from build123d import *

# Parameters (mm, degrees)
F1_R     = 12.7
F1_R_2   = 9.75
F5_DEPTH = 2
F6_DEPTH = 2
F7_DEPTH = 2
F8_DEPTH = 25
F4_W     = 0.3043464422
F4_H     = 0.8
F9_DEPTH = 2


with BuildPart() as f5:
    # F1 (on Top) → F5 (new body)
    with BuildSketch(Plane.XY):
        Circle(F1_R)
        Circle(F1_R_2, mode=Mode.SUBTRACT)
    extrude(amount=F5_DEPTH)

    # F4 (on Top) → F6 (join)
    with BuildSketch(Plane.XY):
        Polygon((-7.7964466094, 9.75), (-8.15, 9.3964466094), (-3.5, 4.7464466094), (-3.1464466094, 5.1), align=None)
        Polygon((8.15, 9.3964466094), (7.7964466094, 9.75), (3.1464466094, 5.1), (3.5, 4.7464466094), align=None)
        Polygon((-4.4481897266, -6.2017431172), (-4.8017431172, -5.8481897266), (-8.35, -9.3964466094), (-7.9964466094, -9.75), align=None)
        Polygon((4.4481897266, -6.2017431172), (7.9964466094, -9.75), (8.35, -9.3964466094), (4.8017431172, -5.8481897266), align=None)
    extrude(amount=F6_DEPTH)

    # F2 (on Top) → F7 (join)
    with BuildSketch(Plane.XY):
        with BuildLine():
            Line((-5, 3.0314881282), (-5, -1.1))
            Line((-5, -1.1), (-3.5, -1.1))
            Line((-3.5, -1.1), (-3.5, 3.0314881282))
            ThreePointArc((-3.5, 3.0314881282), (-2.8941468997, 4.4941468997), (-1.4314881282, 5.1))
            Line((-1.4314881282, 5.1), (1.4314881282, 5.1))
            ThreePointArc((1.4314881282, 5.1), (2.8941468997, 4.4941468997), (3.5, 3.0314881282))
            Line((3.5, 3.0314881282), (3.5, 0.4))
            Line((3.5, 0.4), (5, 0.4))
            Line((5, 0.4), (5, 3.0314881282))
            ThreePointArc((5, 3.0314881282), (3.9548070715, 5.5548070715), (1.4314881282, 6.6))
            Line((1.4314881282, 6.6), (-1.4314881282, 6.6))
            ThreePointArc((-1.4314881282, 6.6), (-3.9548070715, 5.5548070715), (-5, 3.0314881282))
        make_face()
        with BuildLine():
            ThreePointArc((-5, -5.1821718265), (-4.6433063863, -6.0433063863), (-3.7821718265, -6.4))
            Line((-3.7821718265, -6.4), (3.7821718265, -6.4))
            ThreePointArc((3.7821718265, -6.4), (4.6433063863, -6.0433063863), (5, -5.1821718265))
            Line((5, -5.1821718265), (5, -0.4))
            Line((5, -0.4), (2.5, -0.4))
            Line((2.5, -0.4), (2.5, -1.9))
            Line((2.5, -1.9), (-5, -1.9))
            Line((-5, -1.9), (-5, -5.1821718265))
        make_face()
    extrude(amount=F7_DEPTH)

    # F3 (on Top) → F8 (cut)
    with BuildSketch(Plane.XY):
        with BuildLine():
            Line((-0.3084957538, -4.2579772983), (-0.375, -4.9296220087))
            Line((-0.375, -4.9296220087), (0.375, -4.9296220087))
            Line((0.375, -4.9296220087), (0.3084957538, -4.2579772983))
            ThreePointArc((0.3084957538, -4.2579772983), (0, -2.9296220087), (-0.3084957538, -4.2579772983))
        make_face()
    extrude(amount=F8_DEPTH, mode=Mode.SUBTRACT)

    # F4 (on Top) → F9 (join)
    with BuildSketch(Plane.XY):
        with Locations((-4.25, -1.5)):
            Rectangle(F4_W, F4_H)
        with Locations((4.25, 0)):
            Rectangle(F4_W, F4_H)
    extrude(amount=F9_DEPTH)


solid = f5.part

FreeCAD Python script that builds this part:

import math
import FreeCAD as App
import Part
import Sketcher
from FreeCAD import Vector
Q = App.Units.Quantity


def add_polygon(sketch, points):
    """Adds a closed chain of lines whose ends are joined by coincident constraints."""
    first, n = sketch.GeometryCount, len(points)
    for a, b in zip(points, points[1:] + points[:1]):
        sketch.addGeometry(Part.LineSegment(App.Vector(*a, 0), App.Vector(*b, 0)), False)
    for i in range(n):
        sketch.addConstraint(Sketcher.Constraint("Coincident", first + i, 2, first + (i + 1) % n, 1))

doc = App.newDocument("Part")
body = doc.addObject("PartDesign::Body", "Body")

sketch1 = doc.addObject("Sketcher::SketchObject", "Sketch")
body.addObject(sketch1)
sketch1.AttachmentSupport = (doc.XY_Plane, [""])
sketch1.MapMode = "FlatFace"
sketch1.addGeometry([
    Part.Circle(Vector(0, 0, 0), Vector(0, 0, 1), 13),
    Part.Circle(Vector(0, 0, 0), Vector(0, 0, 1), 10),
], False)
sketch1.addConstraint([
    Sketcher.Constraint("Coincident", 0, 3, -1, 1),
    Sketcher.Constraint("Coincident", 1, 3, -1, 1),
    Sketcher.Constraint("Diameter", 0, Q("25.4 mm")),
    Sketcher.Constraint("Diameter", 1, Q("19.5 mm")),
])
pad1 = doc.addObject("PartDesign::Pad", "Pad")
body.addObject(pad1)
pad1.Profile = sketch1
pad1.Length = 2

sketch2 = doc.addObject("Sketcher::SketchObject", "Sketch001")
body.addObject(sketch2)
sketch2.AttachmentSupport = (doc.XY_Plane, [""])
sketch2.MapMode = "FlatFace"
add_polygon(sketch2, [(-7.8, 9.75), (-8.15, 9.4), (-3.5, 4.75), (-3.15, 5.1)])
add_polygon(sketch2, [(8.15, 9.4), (7.8, 9.75), (3.15, 5.1), (3.5, 4.75)])
add_polygon(sketch2, [(-4.45, -6.2), (-4.8, -5.85), (-8.35, -9.4), (-8, -9.75)])
add_polygon(sketch2, [(4.45, -6.2), (8, -9.75), (8.35, -9.4), (4.8, -5.85)])
sketch2.addConstraint([
    Sketcher.Constraint("Symmetric", 3, 2, 4, 2, -2),
    Sketcher.Constraint("Symmetric", 2, 2, 5, 2, -2),
    Sketcher.Constraint("Symmetric", 1, 2, 6, 2, -2),
    Sketcher.Constraint("Symmetric", 0, 2, 7, 2, -2),
    Sketcher.Constraint("Symmetric", 10, 2, 12, 2, -2),
    Sketcher.Constraint("Symmetric", 9, 2, 13, 2, -2),
    Sketcher.Constraint("Symmetric", 8, 2, 14, 2, -2),
    Sketcher.Constraint("Symmetric", 11, 2, 15, 2, -2),
    Sketcher.Constraint("Perpendicular", 0, 1),
    Sketcher.Constraint("Perpendicular", 1, 2),
    Sketcher.Constraint("Perpendicular", 2, 3),
    Sketcher.Constraint("Parallel", 3, 4),
    Sketcher.Constraint("Perpendicular", 7, 8),
    Sketcher.Constraint("Perpendicular", 8, 9),
    Sketcher.Constraint("Perpendicular", 9, 10),
    Sketcher.Constraint("Perpendicular", 10, 11),
    Sketcher.Constraint("Equal", 6, 8),
    Sketcher.Constraint("DistanceX", 1, 2, 6, 2, Q("7 mm")),
    Sketcher.Constraint("Distance", 0, Q("0.5 mm")),
    Sketcher.Constraint("DistanceY", -1, 1, 2, 2, Q("5.1 mm")),
    Sketcher.Constraint("DistanceX", 0, 2, -1, 1, Q("8.15 mm")),
    Sketcher.Constraint("DistanceX", 9, 2, -1, 1, Q("8.35 mm")),
    Sketcher.Constraint("DistanceY", 10, 2, -1, 1, Q("9.75 mm")),
    Sketcher.Constraint("DistanceY", 8, 2, -1, 1, Q("5.84819 mm")),
])
pad2 = doc.addObject("PartDesign::Pad", "Pad001")
body.addObject(pad2)
pad2.Profile = sketch2
pad2.Length = 2

sketch3 = doc.addObject("Sketcher::SketchObject", "Sketch002")
body.addObject(sketch3)
sketch3.AttachmentSupport = (doc.XY_Plane, [""])
sketch3.MapMode = "FlatFace"
sketch3.addGeometry([
    Part.LineSegment(Vector(-5, 3, 0), Vector(-5, -1.1, 0)),
    Part.LineSegment(Vector(-5, -1.1, 0), Vector(-3.5, -1.1, 0)),
    Part.LineSegment(Vector(-3.5, -1.1, 0), Vector(-3.5, 3, 0)),
    Part.ArcOfCircle(Part.Circle(Vector(-1.4, 3, 0), Vector(0, 0, 1), 2.1), math.radians(90), math.radians(180)),
    Part.LineSegment(Vector(-1.4, 5.1, 0), Vector(1.4, 5.1, 0)),
    Part.ArcOfCircle(Part.Circle(Vector(1.4, 3, 0), Vector(0, 0, 1), 2.1), math.radians(0), math.radians(90)),
    Part.LineSegment(Vector(3.5, 3, 0), Vector(3.5, 0.4, 0)),
    Part.LineSegment(Vector(3.5, 0.4, 0), Vector(5, 0.4, 0)),
    Part.LineSegment(Vector(5, 0.4, 0), Vector(5, 3, 0)),
    Part.ArcOfCircle(Part.Circle(Vector(1.4, 3, 0), Vector(0, 0, 1), 3.6), math.radians(0), math.radians(90)),
    Part.LineSegment(Vector(1.4, 6.6, 0), Vector(-1.4, 6.6, 0)),
    Part.ArcOfCircle(Part.Circle(Vector(-1.4, 3, 0), Vector(0, 0, 1), 3.6), math.radians(90), math.radians(180)),
    Part.ArcOfCircle(Part.Circle(Vector(-3.8, -5.2, 0), Vector(0, 0, 1), 1.2), math.radians(-180), math.radians(-90)),
    Part.LineSegment(Vector(-3.8, -6.4, 0), Vector(3.8, -6.4, 0)),
    Part.ArcOfCircle(Part.Circle(Vector(3.8, -5.2, 0), Vector(0, 0, 1), 1.2), math.radians(-90), math.radians(0)),
    Part.LineSegment(Vector(5, -5.2, 0), Vector(5, -0.4, 0)),
    Part.LineSegment(Vector(5, -0.4, 0), Vector(2.5, -0.4, 0)),
    Part.LineSegment(Vector(2.5, -0.4, 0), Vector(2.5, -1.9, 0)),
    Part.LineSegment(Vector(2.5, -1.9, 0), Vector(-5, -1.9, 0)),
    Part.LineSegment(Vector(-5, -1.9, 0), Vector(-5, -5.2, 0)),
], False)
sketch3.addConstraint([
    Sketcher.Constraint("Coincident", 0, 2, 1, 1),
    Sketcher.Constraint("Coincident", 1, 2, 2, 1),
    Sketcher.Constraint("Tangent", 2, 2, 3, 2),
    Sketcher.Constraint("Tangent", 3, 1, 4, 1),
    Sketcher.Constraint("Tangent", 4, 2, 5, 2),
    Sketcher.Constraint("Tangent", 5, 1, 6, 1),
    Sketcher.Constraint("Coincident", 6, 2, 7, 1),
    Sketcher.Constraint("Coincident", 7, 2, 8, 1),
    Sketcher.Constraint("Tangent", 8, 2, 9, 1),
    Sketcher.Constraint("Tangent", 9, 2, 10, 1),
    Sketcher.Constraint("Tangent", 10, 2, 11, 1),
    Sketcher.Constraint("Tangent", 11, 2, 0, 1),
    Sketcher.Constraint("Tangent", 12, 2, 13, 1),
    Sketcher.Constraint("Tangent", 13, 2, 14, 1),
    Sketcher.Constraint("Tangent", 14, 2, 15, 1),
    Sketcher.Constraint("Coincident", 15, 2, 16, 1),
    Sketcher.Constraint("Coincident", 16, 2, 17, 1),
    Sketcher.Constraint("Coincident", 17, 2, 18, 1),
    Sketcher.Constraint("Coincident", 18, 2, 19, 1),
    Sketcher.Constraint("Tangent", 19, 2, 12, 1),
    Sketcher.Constraint("Vertical", 0),
    Sketcher.Constraint("Horizontal", 1),
    Sketcher.Constraint("Vertical", 2),
    Sketcher.Constraint("Horizontal", 4),
    Sketcher.Constraint("Vertical", 6),
    Sketcher.Constraint("Horizontal", 7),
    Sketcher.Constraint("Vertical", 8),
    Sketcher.Constraint("Horizontal", 10),
    Sketcher.Constraint("Horizontal", 13),
    Sketcher.Constraint("Vertical", 15),
    Sketcher.Constraint("Horizontal", 16),
    Sketcher.Constraint("Vertical", 17),
    Sketcher.Constraint("Horizontal", 18),
    Sketcher.Constraint("Vertical", 19),
    Sketcher.Constraint("Coincident", 9, 3, 5, 3),
    Sketcher.Constraint("Coincident", 11, 3, 3, 3),
    Sketcher.Constraint("Equal", 3, 5),
    Sketcher.Constraint("Equal", 12, 14),
    Sketcher.Constraint("Symmetric", 7, 2, 15, 2, -1),
    Sketcher.Constraint("Vertical", 11, 2, 18, 2),
    Sketcher.Constraint("Equal", 7, 17),
    Sketcher.Constraint("DistanceX", 1, 1, 1, 2, Q("1.5 mm")),
    Sketcher.Constraint("DistanceX", 16, 2, 16, 1, Q("2.5 mm")),
    Sketcher.Constraint("DistanceX", 18, 2, 18, 1, Q("7.5 mm")),
    Sketcher.Constraint("DistanceX", 0, 2, -1, 1, Q("5 mm")),
    Sketcher.Constraint("DistanceY", 0, 2, -1, 1, Q("1.1 mm")),
    Sketcher.Constraint("DistanceY", -1, 1, 3, 1, Q("5.1 mm")),
    Sketcher.Constraint("DistanceY", -1, 1, 6, 2, Q("0.4 mm")),
    Sketcher.Constraint("DistanceY", 12, 2, -1, 1, Q("6.4 mm")),
    Sketcher.Constraint("Radius", 3, Q("2.068512 mm")),
    Sketcher.Constraint("Radius", 12, Q("1.217828 mm")),
])
pad3 = doc.addObject("PartDesign::Pad", "Pad002")
body.addObject(pad3)
pad3.Profile = sketch3
pad3.Length = 2

sketch4 = doc.addObject("Sketcher::SketchObject", "Sketch003")
body.addObject(sketch4)
sketch4.AttachmentSupport = (doc.XY_Plane, [""])
sketch4.MapMode = "FlatFace"
sketch4.addGeometry([
    Part.LineSegment(Vector(-0.3, -4.3, 0), Vector(-0.4, -4.9, 0)),
    Part.LineSegment(Vector(-0.4, -4.9, 0), Vector(0.4, -4.9, 0)),
    Part.LineSegment(Vector(0.4, -4.9, 0), Vector(0.3, -4.3, 0)),
    Part.ArcOfCircle(Part.Circle(Vector(0, -3.6, 0), Vector(0, 0, 1), 0.7), math.radians(-64), math.radians(244)),
], False)
sketch4.addConstraint([
    Sketcher.Constraint("Coincident", 0, 2, 1, 1),
    Sketcher.Constraint("Coincident", 1, 2, 2, 1),
    Sketcher.Constraint("Coincident", 2, 2, 3, 1),
    Sketcher.Constraint("Coincident", 3, 2, 0, 1),
    Sketcher.Constraint("Horizontal", 1),
    Sketcher.Constraint("Symmetric", 2, 2, 3, 2, -2),
    Sketcher.Constraint("Equal", 0, 2),
    Sketcher.Constraint("Radius", 3, Q("0.7 mm")),
    Sketcher.Constraint("DistanceX", 1, 1, 1, 2, Q("0.75 mm")),
    Sketcher.Constraint("DistanceY", 0, 2, 3, 3, Q("1.3 mm")),
    Sketcher.Constraint("Distance", 0, Q("0.674929 mm")),
    Sketcher.Constraint("DistanceY", 3, 3, -1, 1, Q("3.629622 mm")),
])
pocket1 = doc.addObject("PartDesign::Pocket", "Pocket")
body.addObject(pocket1)
pocket1.Profile = sketch4
pocket1.Length = 25
pocket1.Reversed = True

sketch5 = doc.addObject("Sketcher::SketchObject", "Sketch004")
body.addObject(sketch5)
sketch5.AttachmentSupport = (doc.XY_Plane, [""])
sketch5.MapMode = "FlatFace"
add_polygon(sketch5, [(-4.4, -1.1), (-4.4, -1.9), (-4.1, -1.9), (-4.1, -1.1)])
add_polygon(sketch5, [(4.1, 0.4), (4.1, -0.4), (4.4, -0.4), (4.4, 0.4)])
sketch5.addConstraint([
    Sketcher.Constraint("Vertical", 0),
    Sketcher.Constraint("Horizontal", 1),
    Sketcher.Constraint("Vertical", 2),
    Sketcher.Constraint("Horizontal", 3),
    Sketcher.Constraint("Vertical", 4),
    Sketcher.Constraint("Horizontal", 5),
    Sketcher.Constraint("Vertical", 6),
    Sketcher.Constraint("Horizontal", 7),
    Sketcher.Constraint("Equal", 3, 5),
    Sketcher.Constraint("Equal", 2, 4),
    Sketcher.Constraint("DistanceY", 0, 2, 0, 1, Q("0.8 mm")),
    Sketcher.Constraint("DistanceY", 0, 2, -1, 1, Q("1.9 mm")),
    Sketcher.Constraint("DistanceY", 4, 2, -1, 1, Q("0.4 mm")),
    Sketcher.Constraint("DistanceX", 3, 2, 4, 2, Q("8.5 mm")),
    Sketcher.Constraint("DistanceX", 1, 1, 1, 2, Q("0.304346 mm")),
    Sketcher.Constraint("DistanceX", 0, 2, -1, 1, Q("4.402173 mm")),
])
pad4 = doc.addObject("PartDesign::Pad", "Pad003")
body.addObject(pad4)
pad4.Profile = sketch5
pad4.Length = 2

doc.recompute()
